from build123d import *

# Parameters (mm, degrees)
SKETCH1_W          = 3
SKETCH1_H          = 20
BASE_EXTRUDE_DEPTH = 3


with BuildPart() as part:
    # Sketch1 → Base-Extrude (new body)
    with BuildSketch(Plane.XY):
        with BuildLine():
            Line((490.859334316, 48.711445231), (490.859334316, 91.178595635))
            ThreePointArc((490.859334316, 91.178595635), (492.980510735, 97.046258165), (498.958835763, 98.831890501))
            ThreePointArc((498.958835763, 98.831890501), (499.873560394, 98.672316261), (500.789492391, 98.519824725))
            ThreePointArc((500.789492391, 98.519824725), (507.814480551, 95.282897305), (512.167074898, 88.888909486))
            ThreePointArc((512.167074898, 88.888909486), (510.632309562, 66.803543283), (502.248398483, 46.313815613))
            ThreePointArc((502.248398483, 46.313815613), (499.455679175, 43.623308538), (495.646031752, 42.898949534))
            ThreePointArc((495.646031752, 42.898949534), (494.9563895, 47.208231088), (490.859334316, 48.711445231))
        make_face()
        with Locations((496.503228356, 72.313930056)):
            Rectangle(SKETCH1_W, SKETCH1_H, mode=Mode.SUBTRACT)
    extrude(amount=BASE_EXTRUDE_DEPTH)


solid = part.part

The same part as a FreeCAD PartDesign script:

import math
import FreeCAD as App
import Part
import Sketcher
from FreeCAD import Vector
Q = App.Units.Quantity

doc = App.newDocument("Part")
params = doc.addObject("Spreadsheet::Sheet", "Params")
for row, (alias, value) in enumerate([
    ("sketch1_width", "3 mm"),
    ("sketch1_height", "20 mm"),
    ("pad1_length", "3 mm"),
], start=1):
    params.set(f"A{row}", alias)
    params.set(f"B{row}", "=" + value)
    params.setAlias(f"B{row}", alias)

body = doc.addObject("PartDesign::Body", "Body")

sketch1 = body.newObject("Sketcher::SketchObject", "Sketch")
sketch1.AttachmentSupport = (doc.getObject("XY_Plane"), [""])
sketch1.MapMode = "FlatFace"
sketch1.addGeometry(Part.LineSegment(Vector(490.9, 91.2, 0), Vector(490.9, 48.7, 0)), False)
sketch1.addGeometry(Part.ArcOfCircle(Part.Circle(Vector(491.6, 44.5, 0), Vector(0, 0, 1), 4.3), math.radians(-21), math.radians(100)), False)
sketch1.addGeometry(Part.ArcOfCircle(Part.Circle(Vector(496.3, 49.7, 0), Vector(0, 0, 1), 6.8), math.radians(-96), math.radians(-29)), False)
sketch1.addGeometry(Part.ArcOfCircle(Part.Circle(Vector(442.8, 82.6, 0), Vector(0, 0, 1), 69.7), math.radians(-31), math.radians(5)), False)
sketch1.addGeometry(Part.ArcOfCircle(Part.Circle(Vector(498.5, 84.2, 0), Vector(0, 0, 1), 14.5), math.radians(19), math.radians(81)), False)
sketch1.addGeometry(Part.ArcOfCircle(Part.Circle(Vector(520, 217, 0), Vector(0, 0, 1), 120), math.radians(-100.12), math.radians(-99.23)), False)
sketch1.addGeometry(Part.ArcOfCircle(Part.Circle(Vector(497.7, 92, 0), Vector(0, 0, 1), 6.9), math.radians(80), math.radians(187)), False)
sketch1.addGeometry(Part.LineSegment(Vector(495, 62.3, 0), Vector(495, 82.3, 0)), False)
sketch1.addGeometry(Part.LineSegment(Vector(495, 82.3, 0), Vector(498, 82.3, 0)), False)
sketch1.addGeometry(Part.LineSegment(Vector(498, 82.3, 0), Vector(498, 62.3, 0)), False)
sketch1.addGeometry(Part.LineSegment(Vector(498, 62.3, 0), Vector(495, 62.3, 0)), False)
sketch1.addConstraint(Sketcher.Constraint("Coincident", 0, 2, 1, 2))
sketch1.addConstraint(Sketcher.Constraint("Coincident", 1, 1, 2, 1))
sketch1.addConstraint(Sketcher.Constraint("Coincident", 2, 2, 3, 1))
sketch1.addConstraint(Sketcher.Constraint("Coincident", 3, 2, 4, 1))
sketch1.addConstraint(Sketcher.Constraint("Tangent", 4, 2, 5, 2))
sketch1.addConstraint(Sketcher.Constraint("Tangent", 5, 1, 6, 1))
sketch1.addConstraint(Sketcher.Constraint("Coincident", 6, 2, 0, 1))
sketch1.addConstraint(Sketcher.Constraint("Coincident", 7, 2, 8, 1))
sketch1.addConstraint(Sketcher.Constraint("Coincident", 8, 2, 9, 1))
sketch1.addConstraint(Sketcher.Constraint("Coincident", 9, 2, 10, 1))
sketch1.addConstraint(Sketcher.Constraint("Coincident", 10, 2, 7, 1))
sketch1.addConstraint(Sketcher.Constraint("Vertical", 0))
sketch1.addConstraint(Sketcher.Constraint("Vertical", 7))
sketch1.addConstraint(Sketcher.Constraint("Horizontal", 8))
sketch1.addConstraint(Sketcher.Constraint("Vertical", 9))
sketch1.addConstraint(Sketcher.Constraint("Horizontal", 10))
sketch1.addConstraint(Sketcher.Constraint("DistanceX", 8, 1, 8, 2, Q("3 mm")))
sketch1.addConstraint(Sketcher.Constraint("DistanceY", 7, 1, 7, 2, Q("20 mm")))
sketch1.addConstraint(Sketcher.Constraint("Radius", 1, Q("4.314677 mm")))
sketch1.addConstraint(Sketcher.Constraint("Radius", 2, Q("6.793608 mm")))
sketch1.addConstraint(Sketcher.Constraint("Radius", 3, Q("69.692844 mm")))
sketch1.addConstraint(Sketcher.Constraint("Radius", 4, Q("14.464282 mm")))
sketch1.addConstraint(Sketcher.Constraint("Radius", 5, Q("120.000013 mm")))
sketch1.addConstraint(Sketcher.Constraint("Radius", 6, Q("6.931654 mm")))
sketch1.addConstraint(Sketcher.Constraint("DistanceY", 0, 2, 0, 1, Q("42.46715 mm")))
sketch1.addConstraint(Sketcher.Constraint("DistanceY", -1, 1, 5, 3, Q("216.965899 mm")))
sketch1.addConstraint(Sketcher.Constraint("DistanceX", -1, 1, 2, 2, Q("502.248398 mm")))
sketch1.addConstraint(Sketcher.Constraint("DistanceY", 2, 3, 3, 3, Q("32.9588 mm")))
sketch1.addConstraint(Sketcher.Constraint("DistanceY", 1, 1, 4, 3, Q("41.343898 mm")))
sketch1.addConstraint(Sketcher.Constraint("DistanceY", 6, 3, 4, 2, Q("6.511801 mm")))
sketch1.addConstraint(Sketcher.Constraint("DistanceX", -1, 1, 1, 3, Q("491.625742 mm")))
sketch1.addConstraint(Sketcher.Constraint("DistanceY", -1, 1, 1, 3, Q("44.465381 mm")))
sketch1.addConstraint(Sketcher.Constraint("DistanceX", -1, 1, 2, 3, Q("496.334649 mm")))
sketch1.addConstraint(Sketcher.Constraint("DistanceX", -1, 1, 4, 3, Q("498.469281 mm")))
sketch1.addConstraint(Sketcher.Constraint("DistanceX", -1, 1, 1, 1, Q("495.646032 mm")))
sketch1.addConstraint(Sketcher.Constraint("DistanceX", -1, 1, 7, 2, Q("495.003228 mm")))
sketch1.addConstraint(Sketcher.Constraint("DistanceY", -1, 1, 7, 2, Q("82.31393 mm")))
sketch1.setExpression("Constraints[16]", "Params.sketch1_width")
sketch1.setExpression("Constraints[17]", "Params.sketch1_height")
pad1 = body.newObject("PartDesign::Pad", "Pad")
pad1.Profile = sketch1
pad1.setExpression("Length", "Params.pad1_length")

doc.recompute()
